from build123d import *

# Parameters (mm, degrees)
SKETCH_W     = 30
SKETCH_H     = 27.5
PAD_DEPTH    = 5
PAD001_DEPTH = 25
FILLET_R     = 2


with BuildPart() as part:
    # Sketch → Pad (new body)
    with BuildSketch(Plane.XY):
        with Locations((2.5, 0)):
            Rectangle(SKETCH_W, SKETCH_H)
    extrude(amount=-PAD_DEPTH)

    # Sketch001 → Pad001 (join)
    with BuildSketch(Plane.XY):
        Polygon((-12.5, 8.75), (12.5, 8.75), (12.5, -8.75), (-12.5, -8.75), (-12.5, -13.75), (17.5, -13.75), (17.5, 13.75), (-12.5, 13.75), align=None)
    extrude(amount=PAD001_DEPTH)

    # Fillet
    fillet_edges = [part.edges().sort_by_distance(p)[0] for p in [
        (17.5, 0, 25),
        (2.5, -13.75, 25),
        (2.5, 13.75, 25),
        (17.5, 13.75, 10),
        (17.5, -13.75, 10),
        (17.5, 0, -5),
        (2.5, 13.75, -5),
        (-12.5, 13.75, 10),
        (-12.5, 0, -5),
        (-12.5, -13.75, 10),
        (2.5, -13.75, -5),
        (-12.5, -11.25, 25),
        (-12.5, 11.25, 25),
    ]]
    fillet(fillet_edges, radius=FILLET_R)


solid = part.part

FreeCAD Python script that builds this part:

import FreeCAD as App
import Part
import Sketcher

V = App.Vector


def edges_at(feature, points):
    """Names of the edges that pass closest to the given points."""
    edges = feature.Shape.Edges
    near = lambda p: min(range(len(edges)), key=lambda i: edges[i].distToShape(Part.Vertex(*p))[0])
    return sorted({f"Edge{near(p) + 1}" for p in points})


def add_polygon(sketch, points):
    """Adds a closed chain of lines whose ends are joined by coincident constraints."""
    first, n = sketch.GeometryCount, len(points)
    for a, b in zip(points, points[1:] + points[:1]):
        sketch.addGeometry(Part.LineSegment(App.Vector(*a, 0), App.Vector(*b, 0)), False)
    for i in range(n):
        sketch.addConstraint(Sketcher.Constraint("Coincident", first + i, 2, first + (i + 1) % n, 1))

doc = App.newDocument("Part")
params = doc.addObject("Spreadsheet::Sheet", "Params")
for row, (alias, value) in enumerate([
    ("sketch1_width", "30 mm"),
    ("sketch1_height", "27.5 mm"),
    ("pad1_length", "5 mm"),
    ("sketch2_width", "25 mm"),
    ("sketch2_width2", "30 mm"),
    ("sketch2_height", "5 mm"),
    ("sketch2_height2", "17.5 mm"),
    ("pad2_length", "25 mm"),
    ("fillet_radius", "2 mm"),
], start=1):
    params.set(f"A{row}", alias)
    params.set(f"B{row}", "=" + value)
    params.setAlias(f"B{row}", alias)

body = doc.addObject("PartDesign::Body", "Body")

# Sketch on XY plane
sketch1 = body.newObject("Sketcher::SketchObject", "Sketch")
sketch1.AttachmentSupport = (doc.getObject("XY_Plane"), [""])
sketch1.MapMode = "FlatFace"
add_polygon(sketch1, [(-12.5, 13.75), (-12.5, -13.75), (17.5, -13.75), (17.5, 13.75)])  # lines 0-3
sketch1.addConstraint([
    Sketcher.Constraint("Vertical", 0),
    Sketcher.Constraint("Horizontal", 1),
    Sketcher.Constraint("Vertical", 2),
    Sketcher.Constraint("Horizontal", 3),
    Sketcher.Constraint("DistanceX", 1, 1, 1, 2, 30.0),
    Sketcher.Constraint("DistanceY", 0, 2, 0, 1, 27.5),
    Sketcher.Constraint("DistanceX", 0, 2, -1, 1, 12.5),
    Sketcher.Constraint("DistanceY", 0, 2, -1, 1, 13.75),
])
sketch1.setExpression("Constraints[8]", "Params.sketch1_width")
sketch1.setExpression("Constraints[9]", "Params.sketch1_height")
pad1 = body.newObject("PartDesign::Pad", "Pad")
pad1.Profile = sketch1
pad1.setExpression("Length", "Params.pad1_length")
pad1.Reversed = True

# Sketch on XY plane
sketch2 = body.newObject("Sketcher::SketchObject", "Sketch001")
sketch2.AttachmentSupport = (doc.getObject("XY_Plane"), [""])
sketch2.MapMode = "FlatFace"
add_polygon(sketch2, [(-12.5, 8.75), (12.5, 8.75), (12.5, -8.75), (-12.5, -8.75), (-12.5, -13.75), (17.5, -13.75), (17.5, 13.75), (-12.5, 13.75)])  # lines 0-7
sketch2.addConstraint([
    Sketcher.Constraint("Horizontal", 0),
    Sketcher.Constraint("Vertical", 1),
    Sketcher.Constraint("Horizontal", 2),
    Sketcher.Constraint("Vertical", 3),
    Sketcher.Constraint("Horizontal", 4),
    Sketcher.Constraint("Vertical", 5),
    Sketcher.Constraint("Horizontal", 6),
    Sketcher.Constraint("Vertical", 7),
    Sketcher.Constraint("Symmetric", 0, 2, 2, 2, -1, 1),
    Sketcher.Constraint("Symmetric", 3, 2, 6, 2, -1),
    Sketcher.Constraint("DistanceX", 0, 1, 0, 2, 25.0),
    Sketcher.Constraint("DistanceX", 4, 1, 4, 2, 30.0),
    Sketcher.Constraint("DistanceY", 3, 2, 3, 1, 5.0),
    Sketcher.Constraint("DistanceY", 1, 2, 1, 1, 17.5),
])
sketch2.setExpression("Constraints[18]", "Params.sketch2_width")
sketch2.setExpression("Constraints[19]", "Params.sketch2_width2")
sketch2.setExpression("Constraints[20]", "Params.sketch2_height")
sketch2.setExpression("Constraints[21]", "Params.sketch2_height2")
pad2 = body.newObject("PartDesign::Pad", "Pad001")
pad2.Profile = sketch2
pad2.setExpression("Length", "Params.pad2_length")
doc.recompute()

fillet = body.newObject("PartDesign::Fillet", "Fillet")
fillet.Base = (pad2, edges_at(pad2, [
    (17.5, 0, 25),
    (2.5, -13.75, 25),
    (2.5, 13.75, 25),
    (17.5, 13.75, 10),
    (17.5, -13.75, 10),
    (17.5, 0, -5),
    (2.5, 13.75, -5),
    (-12.5, 13.75, 10),
    (-12.5, 0, -5),
    (-12.5, -13.75, 10),
    (2.5, -13.75, -5),
    (-12.5, -11.25, 25),
    (-12.5, 11.25, 25),
]))
fillet.setExpression("Radius", "Params.fillet_radius")

doc.recompute()
